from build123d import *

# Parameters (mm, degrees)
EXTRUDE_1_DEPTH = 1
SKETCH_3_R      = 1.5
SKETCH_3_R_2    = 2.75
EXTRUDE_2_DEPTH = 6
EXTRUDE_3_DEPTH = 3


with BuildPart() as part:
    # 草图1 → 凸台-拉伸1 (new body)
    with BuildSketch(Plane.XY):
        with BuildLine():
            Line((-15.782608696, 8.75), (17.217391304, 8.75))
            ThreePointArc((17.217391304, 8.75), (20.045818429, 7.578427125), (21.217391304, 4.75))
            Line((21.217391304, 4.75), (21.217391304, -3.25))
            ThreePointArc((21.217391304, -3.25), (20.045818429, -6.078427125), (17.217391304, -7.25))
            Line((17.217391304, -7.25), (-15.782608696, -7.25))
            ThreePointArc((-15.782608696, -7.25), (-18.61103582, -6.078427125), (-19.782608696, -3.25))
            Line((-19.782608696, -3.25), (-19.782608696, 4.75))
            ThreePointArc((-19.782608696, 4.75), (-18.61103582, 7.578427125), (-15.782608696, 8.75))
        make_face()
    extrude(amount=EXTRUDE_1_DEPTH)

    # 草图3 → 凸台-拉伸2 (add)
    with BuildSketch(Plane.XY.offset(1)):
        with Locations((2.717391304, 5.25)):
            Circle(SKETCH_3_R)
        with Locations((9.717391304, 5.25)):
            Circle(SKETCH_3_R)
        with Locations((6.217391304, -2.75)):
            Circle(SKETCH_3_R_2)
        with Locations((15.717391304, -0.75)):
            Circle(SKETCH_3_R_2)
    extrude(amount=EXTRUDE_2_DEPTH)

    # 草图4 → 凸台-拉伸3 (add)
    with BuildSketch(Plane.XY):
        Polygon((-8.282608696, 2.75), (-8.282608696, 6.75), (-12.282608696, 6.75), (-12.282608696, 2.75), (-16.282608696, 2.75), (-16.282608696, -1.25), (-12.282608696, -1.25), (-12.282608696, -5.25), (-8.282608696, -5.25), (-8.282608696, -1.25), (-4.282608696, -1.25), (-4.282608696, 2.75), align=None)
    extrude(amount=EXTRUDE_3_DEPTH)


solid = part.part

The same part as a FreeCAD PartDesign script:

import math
import FreeCAD as App
import Part
import Sketcher
from FreeCAD import Vector

doc = App.newDocument("Part")
body = doc.addObject("PartDesign::Body", "Body")

sketch1 = body.newObject("Sketcher::SketchObject", "Sketch")
sketch1.AttachmentSupport = (doc.getObject("XY_Plane"), [""])
sketch1.MapMode = "FlatFace"
sketch1.addGeometry([
    Part.LineSegment(Vector(17.2, 8.8, 0), Vector(-15.8, 8.8, 0)),
    Part.ArcOfCircle(Part.Circle(Vector(-15.8, 4.7, 0), Vector(0, 0, 1), 4), math.radians(90), math.radians(180)),
    Part.LineSegment(Vector(-19.8, 4.8, 0), Vector(-19.8, -3.2, 0)),
    Part.ArcOfCircle(Part.Circle(Vector(-15.8, -3.2, 0), Vector(0, 0, 1), 4), math.radians(-180), math.radians(-90)),
    Part.LineSegment(Vector(-15.8, -7.2, 0), Vector(17.2, -7.2, 0)),
    Part.ArcOfCircle(Part.Circle(Vector(17.2, -3.3, 0), Vector(0, 0, 1), 4), math.radians(-90), math.radians(0)),
    Part.LineSegment(Vector(21.2, -3.2, 0), Vector(21.2, 4.8, 0)),
    Part.ArcOfCircle(Part.Circle(Vector(17.2, 4.8, 0), Vector(0, 0, 1), 4), math.radians(0), math.radians(90)),
], False)
sketch1.addConstraint([
    Sketcher.Constraint("Tangent", 0, 2, 1, 1),
    Sketcher.Constraint("Tangent", 1, 2, 2, 1),
    Sketcher.Constraint("Tangent", 2, 2, 3, 1),
    Sketcher.Constraint("Tangent", 3, 2, 4, 1),
    Sketcher.Constraint("Tangent", 4, 2, 5, 1),
    Sketcher.Constraint("Tangent", 5, 2, 6, 1),
    Sketcher.Constraint("Tangent", 6, 2, 7, 1),
    Sketcher.Constraint("Tangent", 7, 2, 0, 1),
    Sketcher.Constraint("Horizontal", 0),
    Sketcher.Constraint("Vertical", 2),
    Sketcher.Constraint("Horizontal", 4),
    Sketcher.Constraint("Vertical", 6),
    Sketcher.Constraint("Equal", 1, 3),
    Sketcher.Constraint("Equal", 3, 5),
    Sketcher.Constraint("Equal", 5, 7),
    Sketcher.Constraint("Radius", 1, 4.0),
    Sketcher.Constraint("DistanceX", 0, 2, 0, 1, 33.0),
    Sketcher.Constraint("DistanceY", 2, 2, 2, 1, 8.0),
    Sketcher.Constraint("DistanceY", -1, 1, 1, 3, 4.75),
    Sketcher.Constraint("DistanceX", 1, 3, -1, 1, 15.782609),
])
pad1 = body.newObject("PartDesign::Pad", "Pad")
pad1.Profile = sketch1
pad1.Length = 1

sketch2 = body.newObject("Sketcher::SketchObject", "Sketch001")
sketch2.AttachmentSupport = (doc.getObject("XY_Plane"), [""])
sketch2.MapMode = "FlatFace"
sketch2.AttachmentOffset = App.Placement(Vector(0, 0, 1), App.Rotation())
sketch2.addGeometry([
    Part.Circle(Vector(2.7, 5.2, 0), Vector(0, 0, 1), 1.5),
    Part.Circle(Vector(9.7, 5.2, 0), Vector(0, 0, 1), 1.5),
    Part.Circle(Vector(6.2, -2.8, 0), Vector(0, 0, 1), 2.8),
    Part.Circle(Vector(15.7, -0.8, 0), Vector(0, 0, 1), 2.8),
], False)
sketch2.addConstraint([
    Sketcher.Constraint("Equal", 0, 1),
    Sketcher.Constraint("Equal", 2, 3),
    Sketcher.Constraint("Horizontal", 0, 3, 1, 3),
    Sketcher.Constraint("Diameter", 0, 3.0),
    Sketcher.Constraint("Diameter", 2, 5.5),
    Sketcher.Constraint("DistanceX", 0, 3, 1, 3, 7.0),
    Sketcher.Constraint("DistanceY", 2, 3, 1, 3, 8.0),
    Sketcher.Constraint("DistanceX", 1, 3, 3, 3, 6.0),
    Sketcher.Constraint("DistanceY", 3, 3, 1, 3, 6.0),
    Sketcher.Constraint("DistanceX", 2, 3, 1, 3, 3.5),
    Sketcher.Constraint("DistanceY", -1, 1, 0, 3, 5.25),
    Sketcher.Constraint("DistanceX", -1, 1, 0, 3, 2.717391),
])
pad2 = body.newObject("PartDesign::Pad", "Pad001")
pad2.Profile = sketch2
pad2.Length = 6

sketch3 = body.newObject("Sketcher::SketchObject", "Sketch002")
sketch3.AttachmentSupport = (doc.getObject("XY_Plane"), [""])
sketch3.MapMode = "FlatFace"
sketch3.addGeometry([
    Part.LineSegment(Vector(-8.3, 2.8, 0), Vector(-8.3, 6.8, 0)),
    Part.LineSegment(Vector(-8.3, 6.8, 0), Vector(-12.3, 6.8, 0)),
    Part.LineSegment(Vector(-12.3, 6.8, 0), Vector(-12.3, 2.8, 0)),
    Part.LineSegment(Vector(-12.3, 2.8, 0), Vector(-16.3, 2.8, 0)),
    Part.LineSegment(Vector(-16.3, 2.8, 0), Vector(-16.3, -1.2, 0)),
    Part.LineSegment(Vector(-16.3, -1.2, 0), Vector(-12.3, -1.2, 0)),
    Part.LineSegment(Vector(-12.3, -1.2, 0), Vector(-12.3, -5.2, 0)),
    Part.LineSegment(Vector(-12.3, -5.2, 0), Vector(-8.3, -5.2, 0)),
    Part.LineSegment(Vector(-8.3, -5.2, 0), Vector(-8.3, -1.2, 0)),
    Part.LineSegment(Vector(-8.3, -1.2, 0), Vector(-4.3, -1.2, 0)),
    Part.LineSegment(Vector(-4.3, -1.2, 0), Vector(-4.3, 2.8, 0)),
    Part.LineSegment(Vector(-4.3, 2.8, 0), Vector(-8.3, 2.8, 0)),
], False)
sketch3.addConstraint([
    Sketcher.Constraint("Coincident", 0, 2, 1, 1),
    Sketcher.Constraint("Coincident", 1, 2, 2, 1),
    Sketcher.Constraint("Coincident", 2, 2, 3, 1),
    Sketcher.Constraint("Coincident", 3, 2, 4, 1),
    Sketcher.Constraint("Coincident", 4, 2, 5, 1),
    Sketcher.Constraint("Coincident", 5, 2, 6, 1),
    Sketcher.Constraint("Coincident", 6, 2, 7, 1),
    Sketcher.Constraint("Coincident", 7, 2, 8, 1),
    Sketcher.Constraint("Coincident", 8, 2, 9, 1),
    Sketcher.Constraint("Coincident", 9, 2, 10, 1),
    Sketcher.Constraint("Coincident", 10, 2, 11, 1),
    Sketcher.Constraint("Coincident", 11, 2, 0, 1),
    Sketcher.Constraint("Vertical", 0),
    Sketcher.Constraint("Horizontal", 1),
    Sketcher.Constraint("Vertical", 2),
    Sketcher.Constraint("Horizontal", 3),
    Sketcher.Constraint("Vertical", 4),
    Sketcher.Constraint("Horizontal", 5),
    Sketcher.Constraint("Vertical", 6),
    Sketcher.Constraint("Horizontal", 7),
    Sketcher.Constraint("Vertical", 8),
    Sketcher.Constraint("Horizontal", 9),
    Sketcher.Constraint("Vertical", 10),
    Sketcher.Constraint("Horizontal", 11),
    Sketcher.Constraint("Horizontal", 5, 2, 8, 2),
    Sketcher.Constraint("Horizontal", 3, 2, 10, 2),
    Sketcher.Constraint("Vertical", 2, 2, 5, 2),
    Sketcher.Constraint("Vertical", 0, 2, 7, 2),
    Sketcher.Constraint("Equal", 1, 3),
    Sketcher.Constraint("Equal", 7, 9),
    Sketcher.Constraint("Equal", 11, 0),
    Sketcher.Constraint("Equal", 2, 4),
    Sketcher.Constraint("Equal", 4, 6),
    Sketcher.Constraint("DistanceX", 1, 2, 1, 1, 4.0),
    Sketcher.Constraint("DistanceY", -1, 1, 0, 2, 6.75),
    Sketcher.Constraint("DistanceX", 0, 2, -1, 1, 8.282609),
])
pad3 = body.newObject("PartDesign::Pad", "Pad002")
pad3.Profile = sketch3
pad3.Length = 3

doc.recompute()
